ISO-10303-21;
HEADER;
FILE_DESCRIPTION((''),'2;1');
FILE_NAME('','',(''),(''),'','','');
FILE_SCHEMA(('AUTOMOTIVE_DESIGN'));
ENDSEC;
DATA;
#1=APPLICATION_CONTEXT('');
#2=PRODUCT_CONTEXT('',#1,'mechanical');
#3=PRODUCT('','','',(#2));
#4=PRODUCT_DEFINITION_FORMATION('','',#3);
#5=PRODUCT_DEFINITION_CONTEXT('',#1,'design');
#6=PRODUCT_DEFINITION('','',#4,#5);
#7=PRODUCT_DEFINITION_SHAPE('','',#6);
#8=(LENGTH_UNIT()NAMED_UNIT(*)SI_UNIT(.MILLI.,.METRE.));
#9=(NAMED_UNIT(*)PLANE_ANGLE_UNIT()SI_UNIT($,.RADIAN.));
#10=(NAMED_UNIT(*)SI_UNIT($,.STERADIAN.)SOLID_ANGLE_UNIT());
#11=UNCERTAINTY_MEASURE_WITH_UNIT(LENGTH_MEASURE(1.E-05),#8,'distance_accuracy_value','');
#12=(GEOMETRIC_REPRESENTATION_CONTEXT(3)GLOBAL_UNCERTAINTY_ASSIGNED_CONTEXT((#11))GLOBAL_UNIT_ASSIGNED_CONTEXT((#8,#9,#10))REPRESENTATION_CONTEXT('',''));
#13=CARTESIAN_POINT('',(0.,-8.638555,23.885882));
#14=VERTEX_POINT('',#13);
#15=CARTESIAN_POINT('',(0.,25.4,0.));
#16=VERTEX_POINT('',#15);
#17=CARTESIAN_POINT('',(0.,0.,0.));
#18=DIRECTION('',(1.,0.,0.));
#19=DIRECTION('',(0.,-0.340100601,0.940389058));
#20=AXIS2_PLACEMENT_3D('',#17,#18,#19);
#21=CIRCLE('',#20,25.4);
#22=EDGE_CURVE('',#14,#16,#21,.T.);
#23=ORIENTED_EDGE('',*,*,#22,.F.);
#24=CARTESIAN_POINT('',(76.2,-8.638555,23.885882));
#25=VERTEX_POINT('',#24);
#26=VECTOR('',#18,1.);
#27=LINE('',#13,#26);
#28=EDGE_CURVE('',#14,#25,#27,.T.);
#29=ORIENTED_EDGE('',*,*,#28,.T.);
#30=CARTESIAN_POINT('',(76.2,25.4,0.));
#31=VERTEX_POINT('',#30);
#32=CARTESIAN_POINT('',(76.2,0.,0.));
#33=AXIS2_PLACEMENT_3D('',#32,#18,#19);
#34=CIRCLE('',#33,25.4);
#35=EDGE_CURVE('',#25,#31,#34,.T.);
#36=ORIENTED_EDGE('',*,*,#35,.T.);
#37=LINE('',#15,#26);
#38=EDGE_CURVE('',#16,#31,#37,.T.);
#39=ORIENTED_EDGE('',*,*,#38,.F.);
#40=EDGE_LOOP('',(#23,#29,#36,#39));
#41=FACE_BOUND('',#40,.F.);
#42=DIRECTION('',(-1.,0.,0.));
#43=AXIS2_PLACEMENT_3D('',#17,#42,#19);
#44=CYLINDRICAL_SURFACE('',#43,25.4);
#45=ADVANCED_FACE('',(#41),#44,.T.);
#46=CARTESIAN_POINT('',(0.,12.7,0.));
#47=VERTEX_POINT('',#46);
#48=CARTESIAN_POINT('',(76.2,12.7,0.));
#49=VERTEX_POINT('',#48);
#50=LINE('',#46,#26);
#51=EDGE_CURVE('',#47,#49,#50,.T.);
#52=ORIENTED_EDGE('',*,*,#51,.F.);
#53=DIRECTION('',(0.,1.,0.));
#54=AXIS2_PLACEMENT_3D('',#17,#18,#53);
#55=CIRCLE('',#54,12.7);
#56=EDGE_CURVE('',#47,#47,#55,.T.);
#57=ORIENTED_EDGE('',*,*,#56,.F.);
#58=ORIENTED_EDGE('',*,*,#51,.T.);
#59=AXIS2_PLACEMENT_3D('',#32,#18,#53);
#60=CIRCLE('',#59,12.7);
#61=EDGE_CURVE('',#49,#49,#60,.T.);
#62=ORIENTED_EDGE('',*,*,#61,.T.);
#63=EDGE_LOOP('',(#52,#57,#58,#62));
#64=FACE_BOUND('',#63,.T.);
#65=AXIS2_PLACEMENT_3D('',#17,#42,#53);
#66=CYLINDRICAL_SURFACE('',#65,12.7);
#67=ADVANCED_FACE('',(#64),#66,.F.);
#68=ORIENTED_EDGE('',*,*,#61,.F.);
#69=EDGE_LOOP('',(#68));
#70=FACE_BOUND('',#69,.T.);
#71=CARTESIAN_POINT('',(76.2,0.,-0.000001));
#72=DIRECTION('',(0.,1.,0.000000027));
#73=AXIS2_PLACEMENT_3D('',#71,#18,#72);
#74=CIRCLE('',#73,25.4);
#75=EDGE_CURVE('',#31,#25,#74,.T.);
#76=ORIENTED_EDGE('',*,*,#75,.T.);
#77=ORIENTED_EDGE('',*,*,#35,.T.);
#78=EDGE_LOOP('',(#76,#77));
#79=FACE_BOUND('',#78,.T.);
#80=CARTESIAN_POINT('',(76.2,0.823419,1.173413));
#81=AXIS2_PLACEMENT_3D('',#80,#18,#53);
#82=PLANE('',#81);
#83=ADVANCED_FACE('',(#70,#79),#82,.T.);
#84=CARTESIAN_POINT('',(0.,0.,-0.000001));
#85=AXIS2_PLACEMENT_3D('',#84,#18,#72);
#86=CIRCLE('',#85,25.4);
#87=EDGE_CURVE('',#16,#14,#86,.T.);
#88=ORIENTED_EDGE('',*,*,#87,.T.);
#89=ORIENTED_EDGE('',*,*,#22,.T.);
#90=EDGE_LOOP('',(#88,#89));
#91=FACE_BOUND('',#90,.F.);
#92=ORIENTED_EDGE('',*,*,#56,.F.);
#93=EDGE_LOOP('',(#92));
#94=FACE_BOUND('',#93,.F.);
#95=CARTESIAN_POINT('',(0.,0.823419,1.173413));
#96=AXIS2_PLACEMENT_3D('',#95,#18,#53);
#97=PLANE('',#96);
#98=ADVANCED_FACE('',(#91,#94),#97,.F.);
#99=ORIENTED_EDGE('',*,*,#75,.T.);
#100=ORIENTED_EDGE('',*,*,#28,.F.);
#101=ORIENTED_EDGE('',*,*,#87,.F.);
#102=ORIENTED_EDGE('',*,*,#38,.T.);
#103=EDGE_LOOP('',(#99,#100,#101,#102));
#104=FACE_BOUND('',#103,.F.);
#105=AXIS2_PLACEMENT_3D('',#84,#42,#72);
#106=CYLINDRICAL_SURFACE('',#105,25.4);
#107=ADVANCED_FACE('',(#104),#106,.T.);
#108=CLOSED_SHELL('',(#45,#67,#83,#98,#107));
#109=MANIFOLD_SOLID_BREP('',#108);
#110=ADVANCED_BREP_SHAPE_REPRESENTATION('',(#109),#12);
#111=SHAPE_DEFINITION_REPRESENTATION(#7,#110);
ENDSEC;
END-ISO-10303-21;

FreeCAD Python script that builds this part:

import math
import FreeCAD as App
import Part
import Sketcher
from FreeCAD import Vector
Q = App.Units.Quantity

doc = App.newDocument("Part")
body = doc.addObject("PartDesign::Body", "Body")

sketch1 = body.newObject("Sketcher::SketchObject", "Sketch")
sketch1.AttachmentSupport = (doc.getObject("YZ_Plane"), [""])
sketch1.MapMode = "FlatFace"
sketch1.addGeometry([
    Part.ArcOfCircle(Part.Circle(Vector(0, 0, 0), Vector(0, 0, 1), 25), math.radians(110), math.radians(360)),
    Part.ArcOfCircle(Part.Circle(Vector(0, 0, 0), Vector(0, 0, 1), 25), math.radians(0), math.radians(110)),
    Part.Circle(Vector(0, 0, 0), Vector(0, 0, 1), 13),
], False)
sketch1.addConstraint([
    Sketcher.Constraint("Tangent", 0, 1, 1, 2),
    Sketcher.Constraint("Coincident", 1, 1, 0, 2),
    Sketcher.Constraint("Coincident", 0, 3, -1, 1),
    Sketcher.Constraint("Coincident", 2, 3, -1, 1),
    Sketcher.Constraint("PointOnObject", 1, 1, -1),
    Sketcher.Constraint("Diameter", 2, Q("1 in")),
    Sketcher.Constraint("Radius", 0, Q("1 in")),
    Sketcher.Constraint("DistanceY", 0, 3, 0, 1, 23.885882),
])
pad1 = body.newObject("PartDesign::Pad", "Pad")
pad1.Profile = sketch1
pad1.Length = Q("3 in")

doc.recompute()
